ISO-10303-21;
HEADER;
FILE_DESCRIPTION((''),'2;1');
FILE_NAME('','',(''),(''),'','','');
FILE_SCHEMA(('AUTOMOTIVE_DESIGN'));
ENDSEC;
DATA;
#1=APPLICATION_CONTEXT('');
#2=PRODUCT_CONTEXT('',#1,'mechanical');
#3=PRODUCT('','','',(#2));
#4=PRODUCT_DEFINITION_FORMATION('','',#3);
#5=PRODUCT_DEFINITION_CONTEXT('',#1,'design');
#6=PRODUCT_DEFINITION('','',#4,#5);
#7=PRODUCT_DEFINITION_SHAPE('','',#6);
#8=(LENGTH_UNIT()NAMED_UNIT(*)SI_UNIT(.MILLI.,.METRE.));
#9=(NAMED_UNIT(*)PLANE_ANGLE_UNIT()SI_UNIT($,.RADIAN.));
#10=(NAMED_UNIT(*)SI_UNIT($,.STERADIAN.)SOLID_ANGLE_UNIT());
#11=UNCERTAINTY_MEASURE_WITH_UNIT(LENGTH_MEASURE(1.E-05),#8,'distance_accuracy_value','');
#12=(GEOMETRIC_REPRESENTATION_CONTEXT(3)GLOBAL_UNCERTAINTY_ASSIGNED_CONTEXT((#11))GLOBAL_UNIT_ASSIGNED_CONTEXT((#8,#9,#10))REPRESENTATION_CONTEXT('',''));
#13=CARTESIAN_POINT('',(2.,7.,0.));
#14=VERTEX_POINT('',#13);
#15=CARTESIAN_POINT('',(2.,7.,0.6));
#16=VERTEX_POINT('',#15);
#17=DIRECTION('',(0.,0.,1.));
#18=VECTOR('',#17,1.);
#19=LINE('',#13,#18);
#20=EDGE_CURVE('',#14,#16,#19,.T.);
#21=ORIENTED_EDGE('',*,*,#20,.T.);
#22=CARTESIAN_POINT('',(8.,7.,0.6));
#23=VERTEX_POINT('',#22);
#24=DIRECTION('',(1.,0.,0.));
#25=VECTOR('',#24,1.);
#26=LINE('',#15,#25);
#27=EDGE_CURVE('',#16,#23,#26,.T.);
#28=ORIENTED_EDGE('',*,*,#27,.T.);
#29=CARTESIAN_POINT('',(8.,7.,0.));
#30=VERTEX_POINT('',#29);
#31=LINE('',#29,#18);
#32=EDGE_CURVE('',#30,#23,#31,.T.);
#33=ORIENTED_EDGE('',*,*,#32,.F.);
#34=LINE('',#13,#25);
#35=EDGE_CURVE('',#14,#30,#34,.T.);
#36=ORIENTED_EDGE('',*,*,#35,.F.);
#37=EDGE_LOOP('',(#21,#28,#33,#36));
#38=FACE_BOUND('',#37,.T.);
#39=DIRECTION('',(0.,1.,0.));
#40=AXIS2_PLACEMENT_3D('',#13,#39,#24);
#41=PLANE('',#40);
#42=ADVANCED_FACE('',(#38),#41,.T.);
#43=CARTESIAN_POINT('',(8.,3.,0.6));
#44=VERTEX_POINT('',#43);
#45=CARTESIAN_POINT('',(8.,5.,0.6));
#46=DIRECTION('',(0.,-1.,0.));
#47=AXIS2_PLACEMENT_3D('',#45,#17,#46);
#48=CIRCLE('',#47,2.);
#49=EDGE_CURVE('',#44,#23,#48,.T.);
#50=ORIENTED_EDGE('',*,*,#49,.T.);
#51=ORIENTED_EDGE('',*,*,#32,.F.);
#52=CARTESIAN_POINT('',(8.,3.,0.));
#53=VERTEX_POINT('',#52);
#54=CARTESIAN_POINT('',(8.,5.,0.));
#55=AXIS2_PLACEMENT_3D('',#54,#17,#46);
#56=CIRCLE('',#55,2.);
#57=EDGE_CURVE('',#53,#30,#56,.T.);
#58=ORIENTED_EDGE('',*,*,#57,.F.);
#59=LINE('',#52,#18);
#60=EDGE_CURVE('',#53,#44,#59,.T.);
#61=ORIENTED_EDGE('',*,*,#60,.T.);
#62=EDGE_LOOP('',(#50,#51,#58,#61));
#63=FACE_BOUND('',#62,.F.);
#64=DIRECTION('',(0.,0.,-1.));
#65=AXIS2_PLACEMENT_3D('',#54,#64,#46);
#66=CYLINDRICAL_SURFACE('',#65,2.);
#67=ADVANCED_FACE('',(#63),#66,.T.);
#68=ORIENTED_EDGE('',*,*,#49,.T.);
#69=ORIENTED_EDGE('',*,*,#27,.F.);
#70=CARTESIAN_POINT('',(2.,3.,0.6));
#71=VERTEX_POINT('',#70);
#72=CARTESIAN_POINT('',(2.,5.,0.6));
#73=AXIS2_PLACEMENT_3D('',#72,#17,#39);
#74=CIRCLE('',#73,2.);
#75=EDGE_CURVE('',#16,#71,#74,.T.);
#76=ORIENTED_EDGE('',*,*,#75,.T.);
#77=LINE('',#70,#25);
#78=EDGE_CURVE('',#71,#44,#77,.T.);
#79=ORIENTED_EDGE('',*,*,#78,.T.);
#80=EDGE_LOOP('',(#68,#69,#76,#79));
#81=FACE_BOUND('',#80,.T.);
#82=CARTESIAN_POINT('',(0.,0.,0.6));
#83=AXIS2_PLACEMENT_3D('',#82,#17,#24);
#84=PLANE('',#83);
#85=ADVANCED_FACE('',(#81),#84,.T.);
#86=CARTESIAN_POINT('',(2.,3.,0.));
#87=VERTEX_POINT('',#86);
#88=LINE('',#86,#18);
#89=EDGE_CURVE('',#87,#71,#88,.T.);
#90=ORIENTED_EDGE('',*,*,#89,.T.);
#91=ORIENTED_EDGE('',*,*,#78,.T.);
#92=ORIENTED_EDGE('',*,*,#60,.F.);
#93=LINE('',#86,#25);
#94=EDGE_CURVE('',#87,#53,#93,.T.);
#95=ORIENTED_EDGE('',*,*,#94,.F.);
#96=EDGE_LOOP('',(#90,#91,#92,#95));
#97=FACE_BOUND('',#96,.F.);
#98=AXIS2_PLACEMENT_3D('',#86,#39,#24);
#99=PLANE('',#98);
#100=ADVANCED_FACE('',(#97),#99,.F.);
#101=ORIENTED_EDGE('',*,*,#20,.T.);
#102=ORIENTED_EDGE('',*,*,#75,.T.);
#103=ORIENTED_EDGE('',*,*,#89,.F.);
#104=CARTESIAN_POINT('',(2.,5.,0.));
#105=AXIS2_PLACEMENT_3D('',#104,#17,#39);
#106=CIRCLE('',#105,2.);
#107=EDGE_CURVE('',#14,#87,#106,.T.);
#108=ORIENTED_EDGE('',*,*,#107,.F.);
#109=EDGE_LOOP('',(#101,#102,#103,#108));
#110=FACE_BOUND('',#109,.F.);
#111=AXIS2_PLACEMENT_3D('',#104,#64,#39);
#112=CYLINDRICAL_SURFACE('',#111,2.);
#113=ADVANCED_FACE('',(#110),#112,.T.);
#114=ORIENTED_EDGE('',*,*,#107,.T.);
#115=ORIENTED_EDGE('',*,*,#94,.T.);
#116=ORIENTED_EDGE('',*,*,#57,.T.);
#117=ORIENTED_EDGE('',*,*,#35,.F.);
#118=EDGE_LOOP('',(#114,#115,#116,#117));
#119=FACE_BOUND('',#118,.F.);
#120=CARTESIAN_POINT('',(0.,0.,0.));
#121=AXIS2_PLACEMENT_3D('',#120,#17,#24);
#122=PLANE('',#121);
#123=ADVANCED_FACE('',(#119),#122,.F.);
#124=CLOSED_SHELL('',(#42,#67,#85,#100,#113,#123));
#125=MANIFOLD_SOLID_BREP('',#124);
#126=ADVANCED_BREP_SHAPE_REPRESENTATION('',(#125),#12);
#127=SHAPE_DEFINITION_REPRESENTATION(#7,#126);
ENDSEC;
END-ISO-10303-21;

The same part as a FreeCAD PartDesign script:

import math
import FreeCAD as App
import Part
import Sketcher

V = App.Vector
Q = App.Units.Quantity

doc = App.newDocument("Part")
body = doc.addObject("PartDesign::Body", "Body")

# Sketch on XY plane
sketch1 = body.newObject("Sketcher::SketchObject", "Sketch")
sketch1.AttachmentSupport = (doc.getObject("XY_Plane"), [""])
sketch1.MapMode = "FlatFace"
sketch1.addGeometry([
    Part.LineSegment(V(8, 7, 0), V(2, 7, 0)),
    Part.ArcOfCircle(Part.Circle(V(2, 5, 0), V(0, 0, 1), 2), math.radians(90), math.radians(270)),
    Part.LineSegment(V(2, 3, 0), V(8, 3, 0)),
    Part.ArcOfCircle(Part.Circle(V(8, 5, 0), V(0, 0, 1), 2), math.radians(-90), math.radians(90)),
], False)
sketch1.addConstraint([
    Sketcher.Constraint("Tangent", 0, 2, 1, 1),
    Sketcher.Constraint("Tangent", 1, 2, 2, 1),
    Sketcher.Constraint("Tangent", 2, 2, 3, 1),
    Sketcher.Constraint("Tangent", 3, 2, 0, 1),
    Sketcher.Constraint("Horizontal", 0),
    Sketcher.Constraint("Horizontal", 2),
    Sketcher.Constraint("Radius", 1, Q("2 mm")),
    Sketcher.Constraint("DistanceX", 0, 2, 0, 1, Q("6 mm")),
    Sketcher.Constraint("DistanceX", -1, 1, 1, 3, Q("2 mm")),
    Sketcher.Constraint("DistanceY", -1, 1, 1, 3, Q("5 mm")),
])
pad1 = body.newObject("PartDesign::Pad", "Pad")
pad1.Profile = sketch1
pad1.Length = 0.6

doc.recompute()
